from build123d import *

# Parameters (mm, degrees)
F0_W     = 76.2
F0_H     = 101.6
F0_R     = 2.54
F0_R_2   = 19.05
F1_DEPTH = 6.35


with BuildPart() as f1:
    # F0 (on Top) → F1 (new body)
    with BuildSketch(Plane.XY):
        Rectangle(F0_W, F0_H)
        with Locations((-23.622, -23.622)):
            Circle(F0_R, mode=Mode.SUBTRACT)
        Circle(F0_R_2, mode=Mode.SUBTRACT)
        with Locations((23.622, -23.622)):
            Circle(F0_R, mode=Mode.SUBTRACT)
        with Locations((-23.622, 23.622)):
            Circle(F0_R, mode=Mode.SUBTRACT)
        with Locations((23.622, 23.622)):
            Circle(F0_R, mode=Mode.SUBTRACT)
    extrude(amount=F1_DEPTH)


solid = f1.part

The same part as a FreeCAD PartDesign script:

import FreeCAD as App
import Part
import Sketcher
Q = App.Units.Quantity


def add_polygon(sketch, points):
    """Adds a closed chain of lines whose ends are joined by coincident constraints."""
    first, n = sketch.GeometryCount, len(points)
    for a, b in zip(points, points[1:] + points[:1]):
        sketch.addGeometry(Part.LineSegment(App.Vector(*a, 0), App.Vector(*b, 0)), False)
    for i in range(n):
        sketch.addConstraint(Sketcher.Constraint("Coincident", first + i, 2, first + (i + 1) % n, 1))

doc = App.newDocument("Part")
params = doc.addObject("Spreadsheet::Sheet", "Params")
for row, (alias, value) in enumerate([
    ("sketch1_diameter", "0.2 in"),
    ("sketch1_diameter2", "1.5 in"),
    ("sketch1_width", "3 in"),
    ("sketch1_height", "4 in"),
    ("pad1_length", "0.25 in"),
], start=1):
    params.set(f"A{row}", alias)
    params.set(f"B{row}", "=" + value)
    params.setAlias(f"B{row}", alias)

body = doc.addObject("PartDesign::Body", "Body")

# Sketch on XY plane
sketch1 = body.newObject("Sketcher::SketchObject", "Sketch")
sketch1.AttachmentSupport = (doc.getObject("XY_Plane"), [""])
sketch1.MapMode = "FlatFace"
add_polygon(sketch1, [(-38.1, 50.8), (-38.1, -50.8), (38.1, -50.8), (38.1, 50.8)])  # lines 0-3
sketch1.addGeometry(Part.Circle(App.Vector(-23.622, -23.622, 0), App.Vector(0, 0, 1), 2.54), False)  # 4
sketch1.addGeometry(Part.Circle(App.Vector(23.622, -23.622, 0), App.Vector(0, 0, 1), 2.54), False)  # 5
sketch1.addGeometry(Part.Circle(App.Vector(-23.622, 23.622, 0), App.Vector(0, 0, 1), 2.54), False)  # 6
sketch1.addGeometry(Part.Circle(App.Vector(0, 0, 0), App.Vector(0, 0, 1), 19.05), False)  # 7
sketch1.addGeometry(Part.Circle(App.Vector(23.622, 23.622, 0), App.Vector(0, 0, 1), 2.54), False)  # 8
sketch1.addConstraint(Sketcher.Constraint("Vertical", 0))
sketch1.addConstraint(Sketcher.Constraint("Horizontal", 1))
sketch1.addConstraint(Sketcher.Constraint("Vertical", 2))
sketch1.addConstraint(Sketcher.Constraint("Horizontal", 3))
sketch1.addConstraint(Sketcher.Constraint("Coincident", 7, 3, -1, 1))
sketch1.addConstraint(Sketcher.Constraint("Equal", 4, 5))
sketch1.addConstraint(Sketcher.Constraint("Equal", 5, 6))
sketch1.addConstraint(Sketcher.Constraint("Equal", 6, 8))
sketch1.addConstraint(Sketcher.Constraint("Symmetric", 5, 3, 6, 3, -1, 1))
sketch1.addConstraint(Sketcher.Constraint("Symmetric", 4, 3, 8, 3, -1, 1))
sketch1.addConstraint(Sketcher.Constraint("Symmetric", 0, 2, 2, 2, -1, 1))
sketch1.addConstraint(Sketcher.Constraint("Symmetric", 4, 3, 5, 3, -2))
sketch1.addConstraint(Sketcher.Constraint("Diameter", 4, Q("0.2 in")))
sketch1.addConstraint(Sketcher.Constraint("Diameter", 7, Q("1.5 in")))
sketch1.addConstraint(Sketcher.Constraint("DistanceX", 1, 1, 1, 2, Q("3 in")))
sketch1.addConstraint(Sketcher.Constraint("DistanceY", 0, 2, 0, 1, Q("4 in")))
sketch1.addConstraint(Sketcher.Constraint("DistanceX", 4, 3, -1, 1, Q("0.93 in")))
sketch1.addConstraint(Sketcher.Constraint("DistanceY", 4, 3, -1, 1, Q("0.93 in")))
sketch1.setExpression("Constraints[16]", "Params.sketch1_diameter")
sketch1.setExpression("Constraints[17]", "Params.sketch1_diameter2")
sketch1.setExpression("Constraints[18]", "Params.sketch1_width")
sketch1.setExpression("Constraints[19]", "Params.sketch1_height")
pad1 = body.newObject("PartDesign::Pad", "Pad")
pad1.Profile = sketch1
pad1.setExpression("Length", "Params.pad1_length")

doc.recompute()
